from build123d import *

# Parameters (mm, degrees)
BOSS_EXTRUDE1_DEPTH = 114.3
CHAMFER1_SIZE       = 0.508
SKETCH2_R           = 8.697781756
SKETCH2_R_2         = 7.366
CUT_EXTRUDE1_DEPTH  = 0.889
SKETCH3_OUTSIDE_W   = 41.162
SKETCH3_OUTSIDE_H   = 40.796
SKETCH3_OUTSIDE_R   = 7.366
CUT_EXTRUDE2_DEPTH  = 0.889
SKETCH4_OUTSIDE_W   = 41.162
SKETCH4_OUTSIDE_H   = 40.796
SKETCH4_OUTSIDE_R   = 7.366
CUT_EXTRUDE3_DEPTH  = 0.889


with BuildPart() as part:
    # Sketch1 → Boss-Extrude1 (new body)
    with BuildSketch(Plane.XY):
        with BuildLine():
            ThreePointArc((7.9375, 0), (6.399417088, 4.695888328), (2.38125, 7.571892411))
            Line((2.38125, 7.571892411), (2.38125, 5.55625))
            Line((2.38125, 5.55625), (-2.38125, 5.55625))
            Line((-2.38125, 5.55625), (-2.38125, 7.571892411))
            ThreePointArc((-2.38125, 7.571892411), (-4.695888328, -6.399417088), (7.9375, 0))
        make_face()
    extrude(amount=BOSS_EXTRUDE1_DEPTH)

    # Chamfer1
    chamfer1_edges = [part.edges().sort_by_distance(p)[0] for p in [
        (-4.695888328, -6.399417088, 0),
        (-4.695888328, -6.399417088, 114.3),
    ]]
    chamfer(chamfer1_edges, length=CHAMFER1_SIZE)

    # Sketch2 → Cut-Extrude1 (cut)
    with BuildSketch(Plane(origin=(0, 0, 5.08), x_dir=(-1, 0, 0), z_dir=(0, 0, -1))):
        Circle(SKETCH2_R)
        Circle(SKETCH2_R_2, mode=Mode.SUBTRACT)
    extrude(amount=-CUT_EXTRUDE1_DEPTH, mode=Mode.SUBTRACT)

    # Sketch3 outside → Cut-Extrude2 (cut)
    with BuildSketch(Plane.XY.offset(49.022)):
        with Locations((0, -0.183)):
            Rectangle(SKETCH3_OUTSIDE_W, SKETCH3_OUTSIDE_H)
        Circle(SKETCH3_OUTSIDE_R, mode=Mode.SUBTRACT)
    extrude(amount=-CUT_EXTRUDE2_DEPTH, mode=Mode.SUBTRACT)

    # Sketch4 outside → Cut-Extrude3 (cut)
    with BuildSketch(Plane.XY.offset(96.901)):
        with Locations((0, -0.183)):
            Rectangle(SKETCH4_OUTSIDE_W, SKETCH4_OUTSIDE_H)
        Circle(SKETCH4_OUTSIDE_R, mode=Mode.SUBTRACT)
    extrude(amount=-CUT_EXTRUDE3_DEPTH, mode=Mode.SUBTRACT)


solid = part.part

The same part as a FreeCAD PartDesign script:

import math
import FreeCAD as App
import Part
import Sketcher
from FreeCAD import Vector
Q = App.Units.Quantity


def edges_at(feature, points):
    """Names of the edges that pass closest to the given points."""
    edges = feature.Shape.Edges
    near = lambda p: min(range(len(edges)), key=lambda i: edges[i].distToShape(Part.Vertex(*p))[0])
    return sorted({f"Edge{near(p) + 1}" for p in points})


def add_polygon(sketch, points):
    """Adds a closed chain of lines whose ends are joined by coincident constraints."""
    first, n = sketch.GeometryCount, len(points)
    for a, b in zip(points, points[1:] + points[:1]):
        sketch.addGeometry(Part.LineSegment(App.Vector(*a, 0), App.Vector(*b, 0)), False)
    for i in range(n):
        sketch.addConstraint(Sketcher.Constraint("Coincident", first + i, 2, first + (i + 1) % n, 1))

doc = App.newDocument("Part")
params = doc.addObject("Spreadsheet::Sheet", "Params")
for row, (alias, value) in enumerate([
    ("sketch1_radius", "0.3125 in"),
    ("sketch1_width", "0.1875 in"),
    ("pad1_length", "4.5 in"),
    ("chamfer_size", "0.02 in"),
    ("sketch2_diameter", "0.58 in"),
    ("pocket1_length", "0.035 in"),
    ("sketch3_diameter", "0.58 in"),
    ("pocket2_length", "0.035 in"),
    ("sketch4_diameter", "0.58 in"),
    ("pocket3_length", "0.035 in"),
], start=1):
    params.set(f"A{row}", alias)
    params.set(f"B{row}", "=" + value)
    params.setAlias(f"B{row}", alias)

body = doc.addObject("PartDesign::Body", "Body")

# Sketch on XY plane
sketch1 = doc.addObject("Sketcher::SketchObject", "Sketch")
body.addObject(sketch1)
sketch1.AttachmentSupport = (doc.XY_Plane, [""])
sketch1.MapMode = "FlatFace"
sketch1.addGeometry(Part.ArcOfCircle(Part.Circle(Vector(0, 0, 0), Vector(0, 0, 1), 7.9375), math.radians(0), math.radians(72.542397)), False)
sketch1.addGeometry(Part.LineSegment(Vector(2.38125, 7.571892, 0), Vector(2.38125, 5.55625, 0)), False)
sketch1.addGeometry(Part.LineSegment(Vector(2.38125, 5.55625, 0), Vector(-2.38125, 5.55625, 0)), False)
sketch1.addGeometry(Part.LineSegment(Vector(-2.38125, 5.55625, 0), Vector(-2.38125, 7.571892, 0)), False)
sketch1.addGeometry(Part.ArcOfCircle(Part.Circle(Vector(0, 0, 0), Vector(0, 0, 1), 7.9375), math.radians(107.457603), math.radians(360)), False)
sketch1.addConstraint(Sketcher.Constraint("Coincident", 0, 2, 1, 1))
sketch1.addConstraint(Sketcher.Constraint("Coincident", 1, 2, 2, 1))
sketch1.addConstraint(Sketcher.Constraint("Coincident", 2, 2, 3, 1))
sketch1.addConstraint(Sketcher.Constraint("Coincident", 3, 2, 4, 1))
sketch1.addConstraint(Sketcher.Constraint("Tangent", 4, 2, 0, 1))
sketch1.addConstraint(Sketcher.Constraint("Vertical", 1))
sketch1.addConstraint(Sketcher.Constraint("Horizontal", 2))
sketch1.addConstraint(Sketcher.Constraint("Vertical", 3))
sketch1.addConstraint(Sketcher.Constraint("Coincident", 0, 3, -1, 1))
sketch1.addConstraint(Sketcher.Constraint("Equal", 0, 4))
sketch1.addConstraint(Sketcher.Constraint("PointOnObject", 4, 2, -1))
sketch1.addConstraint(Sketcher.Constraint("Horizontal", 0, 2, 3, 2))
sketch1.addConstraint(Sketcher.Constraint("Radius", 0, Q("0.3125 in")))
sketch1.addConstraint(Sketcher.Constraint("DistanceX", 2, 2, 2, 1, Q("0.1875 in")))
sketch1.addConstraint(Sketcher.Constraint("DistanceY", -1, 1, 1, 2, Q("0.21875 in")))
sketch1.setExpression("Constraints[12]", "Params.sketch1_radius")
sketch1.setExpression("Constraints[13]", "Params.sketch1_width")
pad1 = doc.addObject("PartDesign::Pad", "Pad")
body.addObject(pad1)
pad1.Profile = sketch1
pad1.setExpression("Length", "Params.pad1_length")
doc.recompute()

chamfer = doc.addObject("PartDesign::Chamfer", "Chamfer")
body.addObject(chamfer)
chamfer.Base = (pad1, edges_at(pad1, [(-4.696, -6.399, 0), (-4.696, -6.399, 114.3)]))
chamfer.setExpression("Size", "Params.chamfer_size")

# Sketch on XY plane
sketch2 = doc.addObject("Sketcher::SketchObject", "Sketch001")
body.addObject(sketch2)
sketch2.AttachmentSupport = (doc.XY_Plane, [""])
sketch2.MapMode = "FlatFace"
sketch2.AttachmentOffset = App.Placement(Vector(0, 0, 0.2 * 25.4), App.Rotation())
sketch2.addGeometry(Part.Circle(Vector(0, 0, 0), Vector(0, 0, 1), 8.697782), False)
sketch2.addGeometry(Part.Circle(Vector(0, 0, 0), Vector(0, 0, 1), 7.366), False)
sketch2.addConstraint(Sketcher.Constraint("Coincident", 0, 3, -1, 1))
sketch2.addConstraint(Sketcher.Constraint("Coincident", 1, 3, -1, 1))
sketch2.addConstraint(Sketcher.Constraint("Diameter", 1, Q("0.58 in")))
sketch2.addConstraint(Sketcher.Constraint("Diameter", 0, 17.395564))
sketch2.setExpression("Constraints[2]", "Params.sketch2_diameter")
pocket1 = doc.addObject("PartDesign::Pocket", "Pocket")
body.addObject(pocket1)
pocket1.Profile = sketch2
pocket1.setExpression("Length", "Params.pocket1_length")
pocket1.Reversed = True

# Sketch on XY plane
sketch3 = doc.addObject("Sketcher::SketchObject", "Sketch002")
body.addObject(sketch3)
sketch3.AttachmentSupport = (doc.XY_Plane, [""])
sketch3.MapMode = "FlatFace"
sketch3.AttachmentOffset = App.Placement(Vector(0, 0, 1.93 * 25.4), App.Rotation())
add_polygon(sketch3, [(-20.581, 20.215), (-20.581, -20.581), (20.581, -20.581), (20.581, 20.215)])  # lines 0-3
sketch3.addGeometry(Part.Circle(Vector(0, 0, 0), Vector(0, 0, 1), 7.366), False)  # 4
sketch3.addConstraint(Sketcher.Constraint("Vertical", 0))
sketch3.addConstraint(Sketcher.Constraint("Horizontal", 1))
sketch3.addConstraint(Sketcher.Constraint("Vertical", 2))
sketch3.addConstraint(Sketcher.Constraint("Horizontal", 3))
sketch3.addConstraint(Sketcher.Constraint("Coincident", 4, 3, -1, 1))
sketch3.addConstraint(Sketcher.Constraint("Diameter", 4, Q("0.58 in")))
sketch3.addConstraint(Sketcher.Constraint("DistanceX", 1, 1, 1, 2, 41.162))
sketch3.addConstraint(Sketcher.Constraint("DistanceY", 0, 2, 0, 1, 40.796))
sketch3.addConstraint(Sketcher.Constraint("DistanceX", 0, 2, -1, 1, 20.581))
sketch3.addConstraint(Sketcher.Constraint("DistanceY", 0, 2, -1, 1, 20.581))
sketch3.setExpression("Constraints[9]", "Params.sketch3_diameter")
pocket2 = doc.addObject("PartDesign::Pocket", "Pocket001")
body.addObject(pocket2)
pocket2.Profile = sketch3
pocket2.setExpression("Length", "Params.pocket2_length")

# Sketch on XY plane
sketch4 = doc.addObject("Sketcher::SketchObject", "Sketch003")
body.addObject(sketch4)
sketch4.AttachmentSupport = (doc.XY_Plane, [""])
sketch4.MapMode = "FlatFace"
sketch4.AttachmentOffset = App.Placement(Vector(0, 0, 3.815 * 25.4), App.Rotation())
add_polygon(sketch4, [(-20.581, 20.215), (-20.581, -20.581), (20.581, -20.581), (20.581, 20.215)])  # lines 0-3
sketch4.addGeometry(Part.Circle(Vector(0, 0, 0), Vector(0, 0, 1), 7.366), False)  # 4
sketch4.addConstraint(Sketcher.Constraint("Vertical", 0))
sketch4.addConstraint(Sketcher.Constraint("Horizontal", 1))
sketch4.addConstraint(Sketcher.Constraint("Vertical", 2))
sketch4.addConstraint(Sketcher.Constraint("Horizontal", 3))
sketch4.addConstraint(Sketcher.Constraint("Coincident", 4, 3, -1, 1))
sketch4.addConstraint(Sketcher.Constraint("Diameter", 4, Q("0.58 in")))
sketch4.addConstraint(Sketcher.Constraint("DistanceX", 1, 1, 1, 2, 41.162))
sketch4.addConstraint(Sketcher.Constraint("DistanceY", 0, 2, 0, 1, 40.796))
sketch4.addConstraint(Sketcher.Constraint("DistanceX", 0, 2, -1, 1, 20.581))
sketch4.addConstraint(Sketcher.Constraint("DistanceY", 0, 2, -1, 1, 20.581))
sketch4.setExpression("Constraints[9]", "Params.sketch4_diameter")
pocket3 = doc.addObject("PartDesign::Pocket", "Pocket002")
body.addObject(pocket3)
pocket3.Profile = sketch4
pocket3.setExpression("Length", "Params.pocket3_length")

doc.recompute()
